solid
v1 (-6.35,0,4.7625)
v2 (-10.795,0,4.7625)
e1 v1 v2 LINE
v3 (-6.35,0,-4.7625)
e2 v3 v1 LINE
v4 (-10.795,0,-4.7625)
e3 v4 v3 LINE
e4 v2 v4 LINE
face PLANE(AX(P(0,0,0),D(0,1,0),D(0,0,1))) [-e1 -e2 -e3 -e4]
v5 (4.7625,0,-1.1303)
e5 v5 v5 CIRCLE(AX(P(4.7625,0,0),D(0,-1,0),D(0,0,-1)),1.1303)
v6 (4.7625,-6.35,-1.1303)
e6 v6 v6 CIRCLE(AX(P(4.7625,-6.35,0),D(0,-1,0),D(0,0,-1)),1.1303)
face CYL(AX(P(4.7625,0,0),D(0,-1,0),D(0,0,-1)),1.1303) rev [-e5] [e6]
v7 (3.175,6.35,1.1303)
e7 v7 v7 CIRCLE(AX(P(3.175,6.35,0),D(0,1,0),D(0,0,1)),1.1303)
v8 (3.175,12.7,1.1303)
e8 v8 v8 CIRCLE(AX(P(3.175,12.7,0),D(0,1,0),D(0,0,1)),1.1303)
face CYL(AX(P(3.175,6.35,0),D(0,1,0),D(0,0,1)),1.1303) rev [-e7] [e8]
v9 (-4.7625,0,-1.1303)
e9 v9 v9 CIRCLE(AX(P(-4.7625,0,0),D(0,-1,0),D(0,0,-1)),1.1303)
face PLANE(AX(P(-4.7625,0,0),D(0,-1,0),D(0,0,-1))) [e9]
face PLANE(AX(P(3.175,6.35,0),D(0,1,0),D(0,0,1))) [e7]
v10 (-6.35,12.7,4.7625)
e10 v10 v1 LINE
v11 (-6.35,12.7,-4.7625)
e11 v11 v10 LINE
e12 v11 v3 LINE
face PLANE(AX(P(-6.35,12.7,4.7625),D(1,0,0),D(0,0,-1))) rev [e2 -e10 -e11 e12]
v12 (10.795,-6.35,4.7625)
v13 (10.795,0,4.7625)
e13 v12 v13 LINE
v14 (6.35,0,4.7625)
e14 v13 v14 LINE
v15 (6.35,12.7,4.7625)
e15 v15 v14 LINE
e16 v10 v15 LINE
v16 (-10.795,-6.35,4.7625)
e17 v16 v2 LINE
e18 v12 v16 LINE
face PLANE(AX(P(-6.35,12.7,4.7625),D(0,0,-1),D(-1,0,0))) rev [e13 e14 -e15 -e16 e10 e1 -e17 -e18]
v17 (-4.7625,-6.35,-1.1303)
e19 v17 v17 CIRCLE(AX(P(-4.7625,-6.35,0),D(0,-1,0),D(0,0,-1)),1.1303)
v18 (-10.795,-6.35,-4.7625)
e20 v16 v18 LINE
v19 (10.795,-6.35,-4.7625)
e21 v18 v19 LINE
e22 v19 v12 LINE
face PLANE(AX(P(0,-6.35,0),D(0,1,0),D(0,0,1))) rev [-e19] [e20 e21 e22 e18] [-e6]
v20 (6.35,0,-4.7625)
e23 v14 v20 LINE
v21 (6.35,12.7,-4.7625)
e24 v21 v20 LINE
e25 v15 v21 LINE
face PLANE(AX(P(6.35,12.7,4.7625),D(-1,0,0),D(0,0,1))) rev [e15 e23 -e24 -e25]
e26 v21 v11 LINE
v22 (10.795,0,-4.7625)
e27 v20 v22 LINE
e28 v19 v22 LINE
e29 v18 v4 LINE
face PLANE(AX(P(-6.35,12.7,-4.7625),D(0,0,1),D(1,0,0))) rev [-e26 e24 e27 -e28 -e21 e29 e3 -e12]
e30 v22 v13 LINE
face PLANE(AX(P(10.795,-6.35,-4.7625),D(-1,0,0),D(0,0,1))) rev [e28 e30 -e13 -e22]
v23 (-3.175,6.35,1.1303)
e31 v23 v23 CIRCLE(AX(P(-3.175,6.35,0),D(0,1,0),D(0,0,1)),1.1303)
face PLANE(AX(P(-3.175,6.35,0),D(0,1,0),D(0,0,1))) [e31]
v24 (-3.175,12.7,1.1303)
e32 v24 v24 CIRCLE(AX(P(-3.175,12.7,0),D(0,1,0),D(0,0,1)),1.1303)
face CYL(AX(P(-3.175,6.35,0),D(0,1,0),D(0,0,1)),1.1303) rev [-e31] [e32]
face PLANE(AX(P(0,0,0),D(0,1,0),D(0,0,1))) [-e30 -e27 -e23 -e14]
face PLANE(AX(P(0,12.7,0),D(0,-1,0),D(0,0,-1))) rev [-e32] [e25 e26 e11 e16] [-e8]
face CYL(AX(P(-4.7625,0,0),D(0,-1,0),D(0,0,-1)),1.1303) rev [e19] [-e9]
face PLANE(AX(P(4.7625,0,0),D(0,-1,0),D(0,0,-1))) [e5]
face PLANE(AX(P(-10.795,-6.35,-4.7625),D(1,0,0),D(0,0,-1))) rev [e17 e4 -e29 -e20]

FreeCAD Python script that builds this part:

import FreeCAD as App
import Part
import Sketcher
from FreeCAD import Vector
Q = App.Units.Quantity


def add_polygon(sketch, points):
    """Adds a closed chain of lines whose ends are joined by coincident constraints."""
    first, n = sketch.GeometryCount, len(points)
    for a, b in zip(points, points[1:] + points[:1]):
        sketch.addGeometry(Part.LineSegment(App.Vector(*a, 0), App.Vector(*b, 0)), False)
    for i in range(n):
        sketch.addConstraint(Sketcher.Constraint("Coincident", first + i, 2, first + (i + 1) % n, 1))

doc = App.newDocument("Part")
body = doc.addObject("PartDesign::Body", "Body")

sketch1 = body.newObject("Sketcher::SketchObject", "Sketch")
sketch1.AttachmentSupport = (doc.getObject("XZ_Plane"), [""])
sketch1.MapMode = "FlatFace"
add_polygon(sketch1, [(-6, -5), (-6, 5), (6, 5), (6, -5)])
sketch1.addConstraint([
    Sketcher.Constraint("Vertical", 0),
    Sketcher.Constraint("Horizontal", 1),
    Sketcher.Constraint("Vertical", 2),
    Sketcher.Constraint("Horizontal", 3),
    Sketcher.Constraint("Symmetric", 0, 2, 2, 2, -1, 1),
    Sketcher.Constraint("DistanceX", 1, 1, 1, 2, Q("0.5 in")),
    Sketcher.Constraint("DistanceY", 0, 1, 0, 2, Q("0.375 in")),
])
pad1 = body.newObject("PartDesign::Pad", "Pad")
pad1.Profile = sketch1
pad1.Length = Q("0.5 in")
pad1.Reversed = True

sketch2 = body.newObject("Sketcher::SketchObject", "Sketch001")
sketch2.AttachmentSupport = (doc.getObject("XZ_Plane"), [""])
sketch2.MapMode = "FlatFace"
sketch2.AttachmentOffset = App.Placement(Vector(0, 0, -0.5 * 25.4), App.Rotation())
sketch2.addGeometry([
    Part.Circle(Vector(-3.2, 0, 0), Vector(0, 0, 1), 1.1),
    Part.Circle(Vector(3.2, 0, 0), Vector(0, 0, 1), 1.1),
], False)
sketch2.addConstraint([
    Sketcher.Constraint("Equal", 0, 1),
    Sketcher.Constraint("Symmetric", 0, 3, 1, 3, -1, 1),
    Sketcher.Constraint("PointOnObject", 0, 3, -1),
    Sketcher.Constraint("Diameter", 0, Q("0.089 in")),
    Sketcher.Constraint("DistanceX", 0, 3, 1, 3, Q("0.25 in")),
])
pocket1 = body.newObject("PartDesign::Pocket", "Pocket")
pocket1.Profile = sketch2
pocket1.Length = Q("0.25 in")
pocket1.Reversed = True

sketch3 = body.newObject("Sketcher::SketchObject", "Sketch002")
sketch3.AttachmentSupport = (doc.getObject("XZ_Plane"), [""])
sketch3.MapMode = "FlatFace"
add_polygon(sketch3, [(-11, 5), (-11, -5), (11, -5), (11, 5)])
sketch3.addConstraint([
    Sketcher.Constraint("Vertical", 0),
    Sketcher.Constraint("Horizontal", 1),
    Sketcher.Constraint("Vertical", 2),
    Sketcher.Constraint("Horizontal", 3),
    Sketcher.Constraint("Symmetric", 0, 2, 2, 2, -1, 1),
    Sketcher.Constraint("DistanceX", 1, 1, 1, 2, Q("0.85 in")),
    Sketcher.Constraint("DistanceY", 0, 2, 0, 1, Q("0.375 in")),
])
pad2 = body.newObject("PartDesign::Pad", "Pad001")
pad2.Profile = sketch3
pad2.Length = Q("0.25 in")

sketch4 = body.newObject("Sketcher::SketchObject", "Sketch003")
sketch4.AttachmentSupport = (doc.getObject("XZ_Plane"), [""])
sketch4.MapMode = "FlatFace"
sketch4.AttachmentOffset = App.Placement(Vector(0, 0, 0.25 * 25.4), App.Rotation())
sketch4.addGeometry([
    Part.Circle(Vector(-4.8, 0, 0), Vector(0, 0, 1), 1.1),
    Part.Circle(Vector(4.8, 0, 0), Vector(0, 0, 1), 1.1),
], False)
sketch4.addConstraint([
    Sketcher.Constraint("Equal", 0, 1),
    Sketcher.Constraint("Symmetric", 0, 3, 1, 3, -1, 1),
    Sketcher.Constraint("PointOnObject", 0, 3, -1),
    Sketcher.Constraint("Diameter", 0, Q("0.089 in")),
    Sketcher.Constraint("DistanceX", 0, 3, -1, 1, Q("0.1875 in")),
])
pocket2 = body.newObject("PartDesign::Pocket", "Pocket001")
pocket2.Profile = sketch4
pocket2.Length = Q("0.25 in")

doc.recompute()
